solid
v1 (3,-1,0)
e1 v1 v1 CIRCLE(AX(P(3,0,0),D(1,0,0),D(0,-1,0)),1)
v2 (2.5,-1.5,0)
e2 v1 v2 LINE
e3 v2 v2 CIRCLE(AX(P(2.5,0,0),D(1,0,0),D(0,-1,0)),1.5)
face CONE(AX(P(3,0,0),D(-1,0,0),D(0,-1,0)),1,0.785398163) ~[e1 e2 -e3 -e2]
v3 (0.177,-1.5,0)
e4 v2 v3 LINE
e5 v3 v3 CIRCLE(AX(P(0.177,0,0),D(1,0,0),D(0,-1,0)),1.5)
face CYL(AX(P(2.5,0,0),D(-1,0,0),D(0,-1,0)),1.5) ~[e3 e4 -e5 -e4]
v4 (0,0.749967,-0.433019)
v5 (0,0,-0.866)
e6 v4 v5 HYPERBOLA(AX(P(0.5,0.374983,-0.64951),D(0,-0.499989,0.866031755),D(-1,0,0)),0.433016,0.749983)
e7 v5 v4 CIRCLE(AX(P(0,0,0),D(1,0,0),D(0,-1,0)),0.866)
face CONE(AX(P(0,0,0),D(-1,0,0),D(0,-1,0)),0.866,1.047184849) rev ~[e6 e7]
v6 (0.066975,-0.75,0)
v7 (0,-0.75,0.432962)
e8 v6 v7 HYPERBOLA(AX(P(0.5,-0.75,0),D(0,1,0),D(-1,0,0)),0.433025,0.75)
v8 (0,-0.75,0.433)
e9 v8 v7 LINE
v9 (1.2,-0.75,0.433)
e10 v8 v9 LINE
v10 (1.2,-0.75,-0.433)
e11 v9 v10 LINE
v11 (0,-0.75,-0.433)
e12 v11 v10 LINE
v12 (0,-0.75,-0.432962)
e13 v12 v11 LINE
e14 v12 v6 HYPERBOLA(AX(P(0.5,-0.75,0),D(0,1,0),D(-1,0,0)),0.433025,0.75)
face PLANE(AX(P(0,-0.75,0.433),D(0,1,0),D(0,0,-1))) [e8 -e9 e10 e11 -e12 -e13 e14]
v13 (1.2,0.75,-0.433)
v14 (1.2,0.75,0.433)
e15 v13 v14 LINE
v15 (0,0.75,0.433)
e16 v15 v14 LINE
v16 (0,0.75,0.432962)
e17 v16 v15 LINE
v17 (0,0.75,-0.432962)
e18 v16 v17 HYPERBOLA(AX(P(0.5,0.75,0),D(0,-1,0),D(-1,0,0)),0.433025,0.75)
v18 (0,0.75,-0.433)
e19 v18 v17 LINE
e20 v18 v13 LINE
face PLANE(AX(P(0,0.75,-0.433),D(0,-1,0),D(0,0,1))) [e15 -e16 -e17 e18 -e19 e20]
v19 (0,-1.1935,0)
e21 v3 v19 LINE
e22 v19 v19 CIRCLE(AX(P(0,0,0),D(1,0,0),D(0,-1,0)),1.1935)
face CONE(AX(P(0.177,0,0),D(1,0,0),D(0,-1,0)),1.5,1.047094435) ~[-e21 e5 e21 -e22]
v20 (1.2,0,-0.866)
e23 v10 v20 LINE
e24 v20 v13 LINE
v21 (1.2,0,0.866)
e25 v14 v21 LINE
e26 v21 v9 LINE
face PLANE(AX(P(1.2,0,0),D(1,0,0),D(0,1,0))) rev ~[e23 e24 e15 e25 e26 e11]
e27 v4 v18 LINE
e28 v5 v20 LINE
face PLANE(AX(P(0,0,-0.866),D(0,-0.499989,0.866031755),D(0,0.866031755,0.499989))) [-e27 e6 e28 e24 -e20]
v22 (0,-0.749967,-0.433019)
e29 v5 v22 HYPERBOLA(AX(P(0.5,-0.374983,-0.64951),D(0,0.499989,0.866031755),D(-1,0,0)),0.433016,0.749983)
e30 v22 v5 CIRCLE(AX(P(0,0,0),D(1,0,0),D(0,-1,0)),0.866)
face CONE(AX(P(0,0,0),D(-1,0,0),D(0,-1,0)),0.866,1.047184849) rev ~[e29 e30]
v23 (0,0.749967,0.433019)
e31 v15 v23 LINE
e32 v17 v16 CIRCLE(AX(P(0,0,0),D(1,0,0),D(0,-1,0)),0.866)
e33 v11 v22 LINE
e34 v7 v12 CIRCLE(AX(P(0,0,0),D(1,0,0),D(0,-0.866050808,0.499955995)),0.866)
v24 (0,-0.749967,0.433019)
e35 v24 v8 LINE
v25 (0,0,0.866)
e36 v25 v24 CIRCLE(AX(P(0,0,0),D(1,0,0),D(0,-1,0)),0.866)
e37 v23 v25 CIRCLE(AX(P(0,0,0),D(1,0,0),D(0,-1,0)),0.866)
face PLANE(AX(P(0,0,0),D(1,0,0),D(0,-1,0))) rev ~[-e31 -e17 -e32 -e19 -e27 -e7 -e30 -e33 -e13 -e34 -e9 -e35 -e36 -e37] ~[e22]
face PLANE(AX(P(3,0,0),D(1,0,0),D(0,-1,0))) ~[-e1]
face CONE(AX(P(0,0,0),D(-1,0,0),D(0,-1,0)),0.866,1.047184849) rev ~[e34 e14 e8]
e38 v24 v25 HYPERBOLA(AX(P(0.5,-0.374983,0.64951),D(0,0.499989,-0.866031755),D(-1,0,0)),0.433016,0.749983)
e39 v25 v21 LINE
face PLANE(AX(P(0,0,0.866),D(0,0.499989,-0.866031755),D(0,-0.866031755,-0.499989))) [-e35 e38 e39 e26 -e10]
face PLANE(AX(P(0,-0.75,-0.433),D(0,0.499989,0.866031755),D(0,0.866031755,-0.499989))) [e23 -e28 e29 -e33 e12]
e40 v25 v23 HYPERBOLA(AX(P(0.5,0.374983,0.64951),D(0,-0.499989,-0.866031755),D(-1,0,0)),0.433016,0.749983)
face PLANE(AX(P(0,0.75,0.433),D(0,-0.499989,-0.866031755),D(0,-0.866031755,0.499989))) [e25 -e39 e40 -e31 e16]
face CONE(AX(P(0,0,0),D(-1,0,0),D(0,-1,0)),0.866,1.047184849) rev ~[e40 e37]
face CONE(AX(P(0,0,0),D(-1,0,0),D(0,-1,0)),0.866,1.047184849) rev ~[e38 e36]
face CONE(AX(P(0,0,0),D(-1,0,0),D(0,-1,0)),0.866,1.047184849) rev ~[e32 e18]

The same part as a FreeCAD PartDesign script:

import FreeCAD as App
import Part
import Sketcher
Q = App.Units.Quantity


def add_polygon(sketch, points):
    """Adds a closed chain of lines whose ends are joined by coincident constraints."""
    first, n = sketch.GeometryCount, len(points)
    for a, b in zip(points, points[1:] + points[:1]):
        sketch.addGeometry(Part.LineSegment(App.Vector(*a, 0), App.Vector(*b, 0)), False)
    for i in range(n):
        sketch.addConstraint(Sketcher.Constraint("Coincident", first + i, 2, first + (i + 1) % n, 1))

doc = App.newDocument("Part")
body = doc.addObject("PartDesign::Body", "Body")

# Sketch on XY plane
sketch1 = body.newObject("Sketcher::SketchObject", "Sketch")
sketch1.AttachmentSupport = (doc.getObject("XY_Plane"), [""])
sketch1.MapMode = "FlatFace"
add_polygon(sketch1, [(3, 0), (0.5, 0), (0, -0.87), (0, -1.19), (0.18, -1.5), (2.5, -1.5), (3, -1)])  # lines 0-6
sketch1.addConstraint(Sketcher.Constraint("Horizontal", 0))
sketch1.addConstraint(Sketcher.Constraint("Vertical", 2))
sketch1.addConstraint(Sketcher.Constraint("Horizontal", 4))
sketch1.addConstraint(Sketcher.Constraint("Vertical", 6))
sketch1.addConstraint(Sketcher.Constraint("PointOnObject", 0, 2, -1))
sketch1.addConstraint(Sketcher.Constraint("PointOnObject", 1, 2, -2))
sketch1.addConstraint(Sketcher.Constraint("DistanceY", 6, 1, 6, 2, 1.0))
sketch1.addConstraint(Sketcher.Constraint("Angle", 1, Q("-120.0007 deg")))
sketch1.addConstraint(Sketcher.Constraint("Angle", 5, Q("45 deg")))
sketch1.addConstraint(Sketcher.Constraint("Distance", 1, 1.0))
sketch1.addConstraint(Sketcher.Constraint("DistanceX", 0, 2, 0, 1, 2.5))
sketch1.addConstraint(Sketcher.Constraint("DistanceX", 0, 2, 4, 2, 2.0))
sketch1.addConstraint(Sketcher.Constraint("DistanceX", 4, 1, 4, 2, 2.323))
sketch1.addConstraint(Sketcher.Constraint("Distance", 3, 0.354))
revolution = body.newObject("PartDesign::Revolution", "Revolution")
revolution.Profile = sketch1
revolution.ReferenceAxis = (sketch1, ["H_Axis"])
revolution.Angle = 360

# Sketch on YZ plane
sketch2 = body.newObject("Sketcher::SketchObject", "Sketch001")
sketch2.AttachmentSupport = (doc.getObject("YZ_Plane"), [""])
sketch2.MapMode = "FlatFace"
add_polygon(sketch2, [(0.8, 0.4), (0, 0.9), (-0.8, 0.4), (-0.8, -0.4), (0, -0.9), (0.8, -0.4)])  # lines 0-5
sketch2.addConstraint(Sketcher.Constraint("Vertical", 2))
sketch2.addConstraint(Sketcher.Constraint("Vertical", 5))
sketch2.addConstraint(Sketcher.Constraint("Symmetric", 0, 2, 3, 2, -1, 1))
sketch2.addConstraint(Sketcher.Constraint("Symmetric", 1, 2, 4, 2, -1, 1))
sketch2.addConstraint(Sketcher.Constraint("PointOnObject", 0, 2, -2))
sketch2.addConstraint(Sketcher.Constraint("Parallel", 0, 3))
sketch2.addConstraint(Sketcher.Constraint("Horizontal", 2, 2, 4, 2))
sketch2.addConstraint(Sketcher.Constraint("Angle", 0, Q("150.0007 deg")))
sketch2.addConstraint(Sketcher.Constraint("DistanceX", 2, 2, 4, 2, 1.5))
sketch2.addConstraint(Sketcher.Constraint("DistanceY", 2, 2, 2, 1, 0.866))
pocket1 = body.newObject("PartDesign::Pocket", "Pocket")
pocket1.Profile = sketch2
pocket1.Length = 1.2
pocket1.Reversed = True

doc.recompute()
